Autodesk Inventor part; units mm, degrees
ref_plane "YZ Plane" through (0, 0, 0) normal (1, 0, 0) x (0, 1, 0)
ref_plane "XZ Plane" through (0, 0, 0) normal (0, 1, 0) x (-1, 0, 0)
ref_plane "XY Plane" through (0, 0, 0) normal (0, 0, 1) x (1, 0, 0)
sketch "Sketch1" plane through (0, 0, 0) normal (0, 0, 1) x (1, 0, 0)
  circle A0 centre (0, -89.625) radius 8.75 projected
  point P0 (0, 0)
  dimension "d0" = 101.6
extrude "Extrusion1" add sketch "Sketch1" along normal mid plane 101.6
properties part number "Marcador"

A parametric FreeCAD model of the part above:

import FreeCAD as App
import Part
import Sketcher
from FreeCAD import Vector
Q = App.Units.Quantity

doc = App.newDocument("Part")
body = doc.addObject("PartDesign::Body", "Body")

# Sketch on XY plane
sketch1 = body.newObject("Sketcher::SketchObject", "Sketch")
sketch1.AttachmentSupport = (doc.getObject("XY_Plane"), [""])
sketch1.MapMode = "FlatFace"
sketch1.addGeometry(Part.Circle(Vector(0, -90, 0), Vector(0, 0, 1), 9), False)
sketch1.addConstraint([
    Sketcher.Constraint("PointOnObject", 0, 3, -2),
    Sketcher.Constraint("Diameter", 0, Q("17.5 mm")),
    Sketcher.Constraint("DistanceY", 0, 3, -1, 1, Q("89.625 mm")),
])
pad1 = body.newObject("PartDesign::Pad", "Pad")
pad1.Profile = sketch1
pad1.Length = 101.6
pad1.Midplane = True

doc.recompute()
